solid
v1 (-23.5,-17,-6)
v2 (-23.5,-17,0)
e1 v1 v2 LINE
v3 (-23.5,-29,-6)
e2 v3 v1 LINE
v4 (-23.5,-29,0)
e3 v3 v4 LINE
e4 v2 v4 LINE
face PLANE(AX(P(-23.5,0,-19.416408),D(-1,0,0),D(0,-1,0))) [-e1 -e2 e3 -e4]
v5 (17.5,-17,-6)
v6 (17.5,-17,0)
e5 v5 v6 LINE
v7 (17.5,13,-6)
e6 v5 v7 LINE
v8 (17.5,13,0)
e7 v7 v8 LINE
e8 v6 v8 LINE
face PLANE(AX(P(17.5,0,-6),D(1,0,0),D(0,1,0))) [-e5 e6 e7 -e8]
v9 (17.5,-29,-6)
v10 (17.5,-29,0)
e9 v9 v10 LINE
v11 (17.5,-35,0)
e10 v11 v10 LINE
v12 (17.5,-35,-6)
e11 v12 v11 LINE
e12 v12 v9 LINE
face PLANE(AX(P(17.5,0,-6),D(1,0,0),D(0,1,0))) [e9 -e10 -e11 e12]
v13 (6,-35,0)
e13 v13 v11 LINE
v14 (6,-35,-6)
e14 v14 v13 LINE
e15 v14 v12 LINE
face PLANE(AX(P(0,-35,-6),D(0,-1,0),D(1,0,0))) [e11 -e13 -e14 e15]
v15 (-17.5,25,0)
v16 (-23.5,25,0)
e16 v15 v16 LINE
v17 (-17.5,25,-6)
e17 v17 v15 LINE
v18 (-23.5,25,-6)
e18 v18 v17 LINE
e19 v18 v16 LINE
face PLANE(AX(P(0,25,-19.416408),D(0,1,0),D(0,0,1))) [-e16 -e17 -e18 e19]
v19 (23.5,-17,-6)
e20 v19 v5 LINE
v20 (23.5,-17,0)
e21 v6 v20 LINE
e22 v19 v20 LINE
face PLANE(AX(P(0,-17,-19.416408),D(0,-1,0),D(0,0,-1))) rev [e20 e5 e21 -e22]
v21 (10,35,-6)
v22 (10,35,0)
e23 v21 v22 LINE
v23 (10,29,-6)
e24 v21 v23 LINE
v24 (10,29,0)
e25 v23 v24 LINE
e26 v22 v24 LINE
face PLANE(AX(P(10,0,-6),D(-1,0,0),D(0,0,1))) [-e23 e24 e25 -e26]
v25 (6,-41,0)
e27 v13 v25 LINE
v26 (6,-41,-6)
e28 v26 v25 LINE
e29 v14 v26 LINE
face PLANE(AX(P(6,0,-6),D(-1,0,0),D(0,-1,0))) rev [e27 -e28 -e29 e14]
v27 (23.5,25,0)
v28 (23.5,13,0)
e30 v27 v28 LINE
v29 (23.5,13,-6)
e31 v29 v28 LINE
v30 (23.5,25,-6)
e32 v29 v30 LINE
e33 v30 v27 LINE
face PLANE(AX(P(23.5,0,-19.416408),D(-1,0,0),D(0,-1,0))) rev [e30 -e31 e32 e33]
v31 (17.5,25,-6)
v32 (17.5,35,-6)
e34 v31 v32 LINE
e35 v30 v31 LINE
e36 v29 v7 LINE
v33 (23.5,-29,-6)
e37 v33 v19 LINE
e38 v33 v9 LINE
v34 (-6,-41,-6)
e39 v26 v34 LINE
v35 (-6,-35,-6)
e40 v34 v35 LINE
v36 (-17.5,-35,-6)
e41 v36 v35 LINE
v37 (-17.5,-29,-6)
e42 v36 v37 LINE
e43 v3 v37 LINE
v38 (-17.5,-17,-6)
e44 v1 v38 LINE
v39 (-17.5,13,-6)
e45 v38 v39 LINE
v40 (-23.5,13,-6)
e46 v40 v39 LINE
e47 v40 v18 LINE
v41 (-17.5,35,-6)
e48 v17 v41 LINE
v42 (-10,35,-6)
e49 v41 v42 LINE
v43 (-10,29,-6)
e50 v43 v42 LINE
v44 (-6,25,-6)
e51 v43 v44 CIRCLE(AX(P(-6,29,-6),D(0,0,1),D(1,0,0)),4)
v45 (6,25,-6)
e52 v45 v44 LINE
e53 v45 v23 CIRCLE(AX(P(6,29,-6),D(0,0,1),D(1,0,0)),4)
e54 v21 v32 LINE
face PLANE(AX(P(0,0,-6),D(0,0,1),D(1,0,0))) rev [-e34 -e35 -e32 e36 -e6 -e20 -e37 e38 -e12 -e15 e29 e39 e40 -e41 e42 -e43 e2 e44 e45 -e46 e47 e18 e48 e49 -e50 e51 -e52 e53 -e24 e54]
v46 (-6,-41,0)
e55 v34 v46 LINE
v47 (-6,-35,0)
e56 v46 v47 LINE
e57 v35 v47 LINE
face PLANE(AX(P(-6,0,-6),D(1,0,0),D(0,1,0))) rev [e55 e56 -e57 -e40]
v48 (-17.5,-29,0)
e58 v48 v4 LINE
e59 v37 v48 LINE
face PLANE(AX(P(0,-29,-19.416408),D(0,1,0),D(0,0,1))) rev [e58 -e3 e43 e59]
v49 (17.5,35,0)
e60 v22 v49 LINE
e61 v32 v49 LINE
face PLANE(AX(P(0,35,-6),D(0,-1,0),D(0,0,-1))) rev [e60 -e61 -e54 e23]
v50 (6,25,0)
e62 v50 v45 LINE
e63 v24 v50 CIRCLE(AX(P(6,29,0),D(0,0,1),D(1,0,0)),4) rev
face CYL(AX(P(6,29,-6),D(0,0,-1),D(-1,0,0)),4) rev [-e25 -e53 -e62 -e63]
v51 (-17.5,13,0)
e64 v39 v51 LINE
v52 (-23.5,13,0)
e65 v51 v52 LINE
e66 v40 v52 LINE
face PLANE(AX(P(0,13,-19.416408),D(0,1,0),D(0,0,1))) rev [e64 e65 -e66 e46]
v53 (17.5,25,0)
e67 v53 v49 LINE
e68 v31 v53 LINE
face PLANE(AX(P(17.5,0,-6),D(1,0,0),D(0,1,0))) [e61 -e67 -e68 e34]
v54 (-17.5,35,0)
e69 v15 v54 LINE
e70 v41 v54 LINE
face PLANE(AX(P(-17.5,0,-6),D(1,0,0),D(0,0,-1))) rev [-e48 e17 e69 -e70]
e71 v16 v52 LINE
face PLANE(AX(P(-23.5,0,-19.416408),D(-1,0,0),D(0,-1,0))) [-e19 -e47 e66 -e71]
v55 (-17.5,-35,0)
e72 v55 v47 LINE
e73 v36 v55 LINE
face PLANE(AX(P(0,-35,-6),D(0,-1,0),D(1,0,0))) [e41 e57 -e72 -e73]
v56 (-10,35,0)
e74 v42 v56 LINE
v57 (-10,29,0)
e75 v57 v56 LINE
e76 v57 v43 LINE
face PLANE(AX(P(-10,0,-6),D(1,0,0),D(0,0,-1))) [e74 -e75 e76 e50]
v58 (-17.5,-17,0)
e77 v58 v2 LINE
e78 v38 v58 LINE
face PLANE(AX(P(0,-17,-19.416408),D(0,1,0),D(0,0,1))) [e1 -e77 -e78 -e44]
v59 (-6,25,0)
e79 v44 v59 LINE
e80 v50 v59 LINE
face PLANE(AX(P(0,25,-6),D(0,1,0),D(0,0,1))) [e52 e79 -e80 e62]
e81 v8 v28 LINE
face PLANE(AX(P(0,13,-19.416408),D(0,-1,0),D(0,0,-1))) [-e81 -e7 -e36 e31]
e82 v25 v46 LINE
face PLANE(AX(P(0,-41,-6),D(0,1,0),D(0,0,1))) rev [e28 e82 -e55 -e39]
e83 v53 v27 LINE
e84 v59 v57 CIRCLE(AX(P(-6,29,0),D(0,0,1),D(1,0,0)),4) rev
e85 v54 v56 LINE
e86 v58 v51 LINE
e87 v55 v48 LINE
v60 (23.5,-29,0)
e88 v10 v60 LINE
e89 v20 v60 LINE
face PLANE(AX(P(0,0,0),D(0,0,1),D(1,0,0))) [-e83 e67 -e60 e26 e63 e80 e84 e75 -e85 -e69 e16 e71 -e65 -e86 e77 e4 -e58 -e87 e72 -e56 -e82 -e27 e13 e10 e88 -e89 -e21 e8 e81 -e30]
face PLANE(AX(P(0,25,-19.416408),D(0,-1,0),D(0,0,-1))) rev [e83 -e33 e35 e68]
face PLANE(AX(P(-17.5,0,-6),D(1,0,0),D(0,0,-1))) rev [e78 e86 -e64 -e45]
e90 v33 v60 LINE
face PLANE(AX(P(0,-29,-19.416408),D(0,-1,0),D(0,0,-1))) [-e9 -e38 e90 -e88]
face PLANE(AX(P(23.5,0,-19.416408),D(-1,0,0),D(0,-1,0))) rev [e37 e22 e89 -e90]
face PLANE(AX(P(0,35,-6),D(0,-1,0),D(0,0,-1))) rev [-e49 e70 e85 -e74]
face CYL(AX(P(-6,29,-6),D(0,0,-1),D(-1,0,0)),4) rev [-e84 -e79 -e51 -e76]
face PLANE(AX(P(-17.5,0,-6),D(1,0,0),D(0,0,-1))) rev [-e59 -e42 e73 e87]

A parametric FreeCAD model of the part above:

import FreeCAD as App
import Part
import Sketcher
from FreeCAD import Vector
Q = App.Units.Quantity


def edges_at(feature, points):
    """Names of the edges that pass closest to the given points."""
    edges = feature.Shape.Edges
    near = lambda p: min(range(len(edges)), key=lambda i: edges[i].distToShape(Part.Vertex(*p))[0])
    return sorted({f"Edge{near(p) + 1}" for p in points})


def add_polygon(sketch, points):
    """Adds a closed chain of lines whose ends are joined by coincident constraints."""
    first, n = sketch.GeometryCount, len(points)
    for a, b in zip(points, points[1:] + points[:1]):
        sketch.addGeometry(Part.LineSegment(App.Vector(*a, 0), App.Vector(*b, 0)), False)
    for i in range(n):
        sketch.addConstraint(Sketcher.Constraint("Coincident", first + i, 2, first + (i + 1) % n, 1))

doc = App.newDocument("Part")
params = doc.addObject("Spreadsheet::Sheet", "Params")
for row, (alias, value) in enumerate([
    ("sketch1_width", "12 mm"),
    ("sketch1_width2", "20 mm"),
    ("sketch1_height", "70 mm"),
    ("sketch1_height2", "6 mm"),
    ("sketch1_height3", "10 mm"),
    ("pad1_length", "6 mm"),
    ("sketch2_width", "6 mm"),
    ("sketch2_height", "12 mm"),
    ("pad2_length", "6 mm"),
    ("fillet_radius", "4 mm"),
], start=1):
    params.set(f"A{row}", alias)
    params.set(f"B{row}", "=" + value)
    params.setAlias(f"B{row}", alias)

body = doc.addObject("PartDesign::Body", "Body")

sketch1 = doc.addObject("Sketcher::SketchObject", "Sketch")
body.addObject(sketch1)
sketch1.AttachmentSupport = (doc.XY_Plane, [""])
sketch1.MapMode = "FlatFace"
add_polygon(sketch1, [(-17.5, 35), (-17.5, -35), (-6, -35), (-6, -41), (6, -41), (6, -35), (17.5, -35), (17.5, 35), (10, 35), (10, 25), (-10, 25), (-10, 35)])
sketch1.addConstraint([
    Sketcher.Constraint("Vertical", 0),
    Sketcher.Constraint("Horizontal", 1),
    Sketcher.Constraint("Vertical", 2),
    Sketcher.Constraint("Horizontal", 3),
    Sketcher.Constraint("Vertical", 4),
    Sketcher.Constraint("Horizontal", 5),
    Sketcher.Constraint("Vertical", 6),
    Sketcher.Constraint("Horizontal", 7),
    Sketcher.Constraint("Vertical", 8),
    Sketcher.Constraint("Horizontal", 9),
    Sketcher.Constraint("Vertical", 10),
    Sketcher.Constraint("Horizontal", 11),
    Sketcher.Constraint("Symmetric", 0, 2, 6, 2, -1, 1),
    Sketcher.Constraint("Symmetric", 1, 2, 4, 2, -2),
    Sketcher.Constraint("Symmetric", 7, 2, 10, 2, -2),
    Sketcher.Constraint("DistanceX", 3, 1, 3, 2, Q("12 mm")),
    Sketcher.Constraint("DistanceX", 9, 2, 9, 1, Q("20 mm")),
    Sketcher.Constraint("DistanceY", 0, 2, 0, 1, Q("70 mm")),
    Sketcher.Constraint("DistanceY", 2, 2, 2, 1, Q("6 mm")),
    Sketcher.Constraint("DistanceY", 8, 2, 8, 1, Q("10 mm")),
    Sketcher.Constraint("DistanceX", 1, 1, 1, 2, Q("11.5 mm")),
])
sketch1.setExpression("Constraints[27]", "Params.sketch1_width")
sketch1.setExpression("Constraints[28]", "Params.sketch1_width2")
sketch1.setExpression("Constraints[29]", "Params.sketch1_height")
sketch1.setExpression("Constraints[30]", "Params.sketch1_height2")
sketch1.setExpression("Constraints[31]", "Params.sketch1_height3")
pad1 = doc.addObject("PartDesign::Pad", "Pad")
body.addObject(pad1)
pad1.Profile = sketch1
pad1.setExpression("Length", "Params.pad1_length")
pad1.Reversed = True

sketch2 = doc.addObject("Sketcher::SketchObject", "Sketch001")
body.addObject(sketch2)
sketch2.AttachmentSupport = (doc.XY_Plane, [""])
sketch2.MapMode = "FlatFace"
add_polygon(sketch2, [(17.5, 25), (17.5, 13), (23.5, 13), (23.5, 25)])
add_polygon(sketch2, [(17.5, -17), (17.5, -29), (23.5, -29), (23.5, -17)])
sketch2.addConstraint([
    Sketcher.Constraint("Vertical", 0),
    Sketcher.Constraint("Horizontal", 1),
    Sketcher.Constraint("Vertical", 2),
    Sketcher.Constraint("Horizontal", 3),
    Sketcher.Constraint("Vertical", 4),
    Sketcher.Constraint("Horizontal", 5),
    Sketcher.Constraint("Vertical", 6),
    Sketcher.Constraint("Horizontal", 7),
    Sketcher.Constraint("Vertical", 3, 2, 4, 2),
    Sketcher.Constraint("Vertical", 2, 2, 5, 2),
    Sketcher.Constraint("Equal", 2, 4),
    Sketcher.Constraint("DistanceX", 1, 1, 1, 2, Q("6 mm")),
    Sketcher.Constraint("DistanceY", 0, 2, 0, 1, Q("12 mm")),
    Sketcher.Constraint("DistanceY", -1, 1, 0, 2, Q("13 mm")),
    Sketcher.Constraint("DistanceY", 4, 2, -1, 1, Q("29 mm")),
    Sketcher.Constraint("DistanceX", -1, 1, 0, 2, Q("17.5 mm")),
])
sketch2.setExpression("Constraints[19]", "Params.sketch2_width")
sketch2.setExpression("Constraints[20]", "Params.sketch2_height")
pad2 = doc.addObject("PartDesign::Pad", "Pad001")
body.addObject(pad2)
pad2.Profile = sketch2
pad2.setExpression("Length", "Params.pad2_length")
pad2.Reversed = True
doc.recompute()

mirrored = doc.addObject("PartDesign::Mirrored", "Mirrored")
body.addObject(mirrored)
mirrored.Originals = [pad2]
mirrored.MirrorPlane = (doc.YZ_Plane, [""])
body.Tip = mirrored
doc.recompute()

fillet = doc.addObject("PartDesign::Fillet", "Fillet")
body.addObject(fillet)
fillet.Base = (mirrored, edges_at(mirrored, [(-10, 25, -3), (10, 25, -3)]))
fillet.setExpression("Radius", "Params.fillet_radius")

doc.recompute()
